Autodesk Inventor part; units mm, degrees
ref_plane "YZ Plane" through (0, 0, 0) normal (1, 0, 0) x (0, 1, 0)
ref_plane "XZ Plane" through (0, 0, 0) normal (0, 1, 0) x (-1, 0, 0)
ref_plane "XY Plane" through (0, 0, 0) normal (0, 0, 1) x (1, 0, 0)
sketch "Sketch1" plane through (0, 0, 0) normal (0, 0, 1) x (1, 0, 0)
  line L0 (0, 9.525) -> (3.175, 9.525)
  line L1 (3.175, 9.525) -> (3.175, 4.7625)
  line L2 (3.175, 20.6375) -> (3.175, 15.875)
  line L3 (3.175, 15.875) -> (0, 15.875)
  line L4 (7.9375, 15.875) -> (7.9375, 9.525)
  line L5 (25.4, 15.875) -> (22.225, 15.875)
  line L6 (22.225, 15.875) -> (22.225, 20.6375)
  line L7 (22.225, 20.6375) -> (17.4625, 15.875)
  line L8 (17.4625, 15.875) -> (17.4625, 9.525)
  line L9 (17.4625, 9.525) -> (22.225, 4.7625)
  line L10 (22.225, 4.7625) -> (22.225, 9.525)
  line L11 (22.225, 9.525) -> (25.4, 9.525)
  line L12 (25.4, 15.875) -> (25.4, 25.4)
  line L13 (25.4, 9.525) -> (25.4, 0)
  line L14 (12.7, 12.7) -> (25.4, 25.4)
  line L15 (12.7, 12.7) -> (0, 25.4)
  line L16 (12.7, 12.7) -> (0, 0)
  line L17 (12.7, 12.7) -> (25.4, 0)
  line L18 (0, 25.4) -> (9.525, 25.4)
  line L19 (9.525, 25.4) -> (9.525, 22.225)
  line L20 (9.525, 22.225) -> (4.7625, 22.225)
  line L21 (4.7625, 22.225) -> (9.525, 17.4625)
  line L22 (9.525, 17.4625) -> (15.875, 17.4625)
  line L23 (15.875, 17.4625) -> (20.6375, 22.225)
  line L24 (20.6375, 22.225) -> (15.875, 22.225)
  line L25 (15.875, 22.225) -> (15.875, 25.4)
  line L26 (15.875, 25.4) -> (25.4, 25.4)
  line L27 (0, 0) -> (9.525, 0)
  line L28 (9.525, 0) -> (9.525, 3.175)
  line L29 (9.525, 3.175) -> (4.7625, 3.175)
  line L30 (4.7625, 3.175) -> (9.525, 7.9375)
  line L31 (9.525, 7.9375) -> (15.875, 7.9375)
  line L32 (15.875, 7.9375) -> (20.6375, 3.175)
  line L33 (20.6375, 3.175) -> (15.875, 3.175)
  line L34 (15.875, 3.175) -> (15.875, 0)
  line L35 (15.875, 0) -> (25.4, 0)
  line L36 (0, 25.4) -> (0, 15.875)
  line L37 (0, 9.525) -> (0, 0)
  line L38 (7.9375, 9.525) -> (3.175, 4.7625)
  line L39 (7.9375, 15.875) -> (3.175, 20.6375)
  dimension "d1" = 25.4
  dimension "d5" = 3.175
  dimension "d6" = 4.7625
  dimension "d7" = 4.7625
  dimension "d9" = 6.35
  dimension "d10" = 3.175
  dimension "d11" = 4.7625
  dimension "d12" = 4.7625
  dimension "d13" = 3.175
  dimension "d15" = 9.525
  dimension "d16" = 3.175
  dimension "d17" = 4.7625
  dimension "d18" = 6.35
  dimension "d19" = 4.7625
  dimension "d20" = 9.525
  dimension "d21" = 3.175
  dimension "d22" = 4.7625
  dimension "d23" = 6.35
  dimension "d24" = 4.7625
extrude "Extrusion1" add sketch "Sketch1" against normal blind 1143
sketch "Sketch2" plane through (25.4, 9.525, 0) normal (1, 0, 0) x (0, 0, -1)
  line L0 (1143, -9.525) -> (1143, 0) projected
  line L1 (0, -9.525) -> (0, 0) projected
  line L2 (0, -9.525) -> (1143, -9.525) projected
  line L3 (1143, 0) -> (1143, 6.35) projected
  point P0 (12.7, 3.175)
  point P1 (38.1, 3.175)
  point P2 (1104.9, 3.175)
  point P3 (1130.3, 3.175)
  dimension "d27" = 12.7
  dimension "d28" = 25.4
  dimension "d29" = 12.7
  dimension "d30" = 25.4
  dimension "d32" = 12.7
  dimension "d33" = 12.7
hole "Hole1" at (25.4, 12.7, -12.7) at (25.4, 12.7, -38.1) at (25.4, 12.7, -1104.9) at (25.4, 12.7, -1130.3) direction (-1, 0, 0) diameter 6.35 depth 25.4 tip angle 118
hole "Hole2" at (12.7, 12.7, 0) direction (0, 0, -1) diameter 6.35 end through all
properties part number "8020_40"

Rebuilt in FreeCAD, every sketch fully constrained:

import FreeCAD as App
import Part
import Sketcher
Q = App.Units.Quantity


def add_polygon(sketch, points):
    """Adds a closed chain of lines whose ends are joined by coincident constraints."""
    first, n = sketch.GeometryCount, len(points)
    for a, b in zip(points, points[1:] + points[:1]):
        sketch.addGeometry(Part.LineSegment(App.Vector(*a, 0), App.Vector(*b, 0)), False)
    for i in range(n):
        sketch.addConstraint(Sketcher.Constraint("Coincident", first + i, 2, first + (i + 1) % n, 1))

doc = App.newDocument("Part")
body = doc.addObject("PartDesign::Body", "Body")

# Sketch on XY plane
sketch1 = doc.addObject("Sketcher::SketchObject", "Sketch")
body.addObject(sketch1)
sketch1.AttachmentSupport = (doc.XY_Plane, [""])
sketch1.MapMode = "FlatFace"
add_polygon(sketch1, [(3.175, 9.525), (0, 9.525), (0, 0), (9.525, 0), (9.525, 3.175), (4.7625, 3.175), (9.525, 7.9375), (15.875, 7.9375), (20.6375, 3.175), (15.875, 3.175), (15.875, 0), (25.4, 0), (25.4, 9.525), (22.225, 9.525), (22.225, 4.7625), (17.4625, 9.525), (17.4625, 15.875), (22.225, 20.6375), (22.225, 15.875), (25.4, 15.875), (25.4, 25.4), (15.875, 25.4), (15.875, 22.225), (20.6375, 22.225), (15.875, 17.4625), (9.525, 17.4625), (4.7625, 22.225), (9.525, 22.225), (9.525, 25.4), (0, 25.4), (0, 15.875), (3.175, 15.875), (3.175, 20.6375), (7.9375, 15.875), (7.9375, 9.525), (3.175, 4.7625)])  # lines 0-35
sketch1.addConstraint(Sketcher.Constraint("Horizontal", 0))
sketch1.addConstraint(Sketcher.Constraint("Vertical", 1))
sketch1.addConstraint(Sketcher.Constraint("Horizontal", 2))
sketch1.addConstraint(Sketcher.Constraint("Vertical", 3))
sketch1.addConstraint(Sketcher.Constraint("Horizontal", 4))
sketch1.addConstraint(Sketcher.Constraint("Horizontal", 6))
sketch1.addConstraint(Sketcher.Constraint("Horizontal", 8))
sketch1.addConstraint(Sketcher.Constraint("Vertical", 9))
sketch1.addConstraint(Sketcher.Constraint("Horizontal", 10))
sketch1.addConstraint(Sketcher.Constraint("Vertical", 11))
sketch1.addConstraint(Sketcher.Constraint("Horizontal", 12))
sketch1.addConstraint(Sketcher.Constraint("Vertical", 13))
sketch1.addConstraint(Sketcher.Constraint("Vertical", 15))
sketch1.addConstraint(Sketcher.Constraint("Vertical", 17))
sketch1.addConstraint(Sketcher.Constraint("Horizontal", 18))
sketch1.addConstraint(Sketcher.Constraint("Vertical", 19))
sketch1.addConstraint(Sketcher.Constraint("Horizontal", 20))
sketch1.addConstraint(Sketcher.Constraint("Vertical", 21))
sketch1.addConstraint(Sketcher.Constraint("Horizontal", 22))
sketch1.addConstraint(Sketcher.Constraint("Horizontal", 24))
sketch1.addConstraint(Sketcher.Constraint("Horizontal", 26))
sketch1.addConstraint(Sketcher.Constraint("Vertical", 27))
sketch1.addConstraint(Sketcher.Constraint("Horizontal", 28))
sketch1.addConstraint(Sketcher.Constraint("Vertical", 29))
sketch1.addConstraint(Sketcher.Constraint("Horizontal", 30))
sketch1.addConstraint(Sketcher.Constraint("Vertical", 31))
sketch1.addConstraint(Sketcher.Constraint("Vertical", 33))
sketch1.addConstraint(Sketcher.Constraint("Vertical", 35))
sketch1.addConstraint(Sketcher.Constraint("Coincident", 1, 2, -1, 1))
sketch1.addConstraint(Sketcher.Constraint("PointOnObject", 9, 2, -1))
sketch1.addConstraint(Sketcher.Constraint("PointOnObject", 28, 2, -2))
sketch1.addConstraint(Sketcher.Constraint("Perpendicular", 5, 7))
sketch1.addConstraint(Sketcher.Constraint("Parallel", 7, 14))
sketch1.addConstraint(Sketcher.Constraint("Perpendicular", 14, 16))
sketch1.addConstraint(Sketcher.Constraint("Parallel", 16, 23))
sketch1.addConstraint(Sketcher.Constraint("Perpendicular", 23, 25))
sketch1.addConstraint(Sketcher.Constraint("Parallel", 25, 32))
sketch1.addConstraint(Sketcher.Constraint("Perpendicular", 32, 34))
sketch1.addConstraint(Sketcher.Constraint("Horizontal", 4, 2, 7, 2))
sketch1.addConstraint(Sketcher.Constraint("Horizontal", 0, 2, 11, 2))
sketch1.addConstraint(Sketcher.Constraint("Horizontal", 12, 2, 14, 2))
sketch1.addConstraint(Sketcher.Constraint("Horizontal", 15, 2, 17, 2))
sketch1.addConstraint(Sketcher.Constraint("Horizontal", 22, 2, 25, 2))
sketch1.addConstraint(Sketcher.Constraint("Horizontal", 20, 2, 27, 2))
sketch1.addConstraint(Sketcher.Constraint("Horizontal", 18, 2, 29, 2))
sketch1.addConstraint(Sketcher.Constraint("Horizontal", 16, 2, 31, 2))
sketch1.addConstraint(Sketcher.Constraint("Horizontal", 30, 2, 32, 2))
sketch1.addConstraint(Sketcher.Constraint("Horizontal", 14, 2, 33, 2))
sketch1.addConstraint(Sketcher.Constraint("Horizontal", 13, 2, 34, 2))
sketch1.addConstraint(Sketcher.Constraint("Vertical", 3, 2, 5, 2))
sketch1.addConstraint(Sketcher.Constraint("Vertical", 6, 2, 8, 2))
sketch1.addConstraint(Sketcher.Constraint("Vertical", 13, 2, 16, 2))
sketch1.addConstraint(Sketcher.Constraint("Vertical", 11, 2, 18, 2))
sketch1.addConstraint(Sketcher.Constraint("Vertical", 9, 2, 20, 2))
sketch1.addConstraint(Sketcher.Constraint("Vertical", 7, 2, 22, 2))
sketch1.addConstraint(Sketcher.Constraint("Vertical", 21, 2, 23, 2))
sketch1.addConstraint(Sketcher.Constraint("Vertical", 5, 2, 24, 2))
sketch1.addConstraint(Sketcher.Constraint("Vertical", 4, 2, 25, 2))
sketch1.addConstraint(Sketcher.Constraint("Vertical", 24, 2, 26, 2))
sketch1.addConstraint(Sketcher.Constraint("Equal", 2, 10))
sketch1.addConstraint(Sketcher.Constraint("Equal", 0, 12))
sketch1.addConstraint(Sketcher.Constraint("Equal", 28, 1))
sketch1.addConstraint(Sketcher.Constraint("Equal", 30, 3))
sketch1.addConstraint(Sketcher.Constraint("Equal", 26, 13))
sketch1.addConstraint(Sketcher.Constraint("Equal", 24, 15))
sketch1.addConstraint(Sketcher.Constraint("Equal", 11, 19))
sketch1.addConstraint(Sketcher.Constraint("Equal", 9, 21))
sketch1.addConstraint(Sketcher.Constraint("DistanceX", -1, 1, 10, 2, Q("1 in")))
sketch1.addConstraint(Sketcher.Constraint("DistanceX", 6, 1, 6, 2, Q("0.25 in")))
sketch1.addConstraint(Sketcher.Constraint("DistanceX", 0, 2, 0, 1, Q("0.125 in")))
sketch1.addConstraint(Sketcher.Constraint("DistanceX", 4, 2, 4, 1, Q("0.1875 in")))
pad1 = doc.addObject("PartDesign::Pad", "Pad")
body.addObject(pad1)
pad1.Profile = sketch1
pad1.Length = Q("45 in")
pad1.Reversed = True

# Sketch on YZ plane
sketch2 = doc.addObject("Sketcher::SketchObject", "Sketch001")
body.addObject(sketch2)
sketch2.AttachmentSupport = (doc.YZ_Plane, [""])
sketch2.MapMode = "FlatFace"
sketch2.AttachmentOffset = App.Placement(App.Vector(0, 0, 1 * 25.4), App.Rotation())
sketch2.addGeometry(Part.Circle(App.Vector(12.7, -12.7, 0), App.Vector(0, 0, 1), 3.175), False)
sketch2.addGeometry(Part.Circle(App.Vector(12.7, -38.1, 0), App.Vector(0, 0, 1), 3.175), False)
sketch2.addGeometry(Part.Circle(App.Vector(12.7, -1104.9, 0), App.Vector(0, 0, 1), 3.175), False)
sketch2.addGeometry(Part.Circle(App.Vector(12.7, -1130.3, 0), App.Vector(0, 0, 1), 3.175), False)
sketch2.addConstraint(Sketcher.Constraint("Equal", 0, 1))
sketch2.addConstraint(Sketcher.Constraint("Equal", 1, 2))
sketch2.addConstraint(Sketcher.Constraint("Equal", 2, 3))
sketch2.addConstraint(Sketcher.Constraint("Vertical", 0, 3, 1, 3))
sketch2.addConstraint(Sketcher.Constraint("Vertical", 1, 3, 2, 3))
sketch2.addConstraint(Sketcher.Constraint("Vertical", 2, 3, 3, 3))
sketch2.addConstraint(Sketcher.Constraint("Diameter", 0, Q("0.25 in")))
sketch2.addConstraint(Sketcher.Constraint("DistanceY", 1, 3, 0, 3, Q("1 in")))
sketch2.addConstraint(Sketcher.Constraint("DistanceY", 2, 3, 1, 3, Q("42 in")))
sketch2.addConstraint(Sketcher.Constraint("DistanceY", 3, 3, 2, 3, Q("1 in")))
sketch2.addConstraint(Sketcher.Constraint("DistanceX", -1, 1, 0, 3, Q("0.5 in")))
sketch2.addConstraint(Sketcher.Constraint("DistanceY", 0, 3, -1, 1, Q("0.5 in")))
doc.recompute()
hole = doc.addObject("PartDesign::Hole", "Hole")
body.addObject(hole)
hole.Profile = sketch2
hole.ThreadType = "None"
hole.Diameter = Q("0.25 in")
hole.DepthType = "Dimension"
hole.Depth = Q("1 in")
hole.DrillPoint = "Angled"
hole.DrillPointAngle = 118

# Sketch on XY plane
sketch3 = doc.addObject("Sketcher::SketchObject", "Sketch002")
body.addObject(sketch3)
sketch3.AttachmentSupport = (doc.XY_Plane, [""])
sketch3.MapMode = "FlatFace"
sketch3.addGeometry(Part.Circle(App.Vector(12.7, 12.7, 0), App.Vector(0, 0, 1), 3.175), False)
sketch3.addConstraint(Sketcher.Constraint("Diameter", 0, Q("0.25 in")))
sketch3.addConstraint(Sketcher.Constraint("DistanceX", -1, 1, 0, 3, Q("0.5 in")))
sketch3.addConstraint(Sketcher.Constraint("DistanceY", -1, 1, 0, 3, Q("0.5 in")))
doc.recompute()
hole2 = doc.addObject("PartDesign::Hole", "Hole001")
body.addObject(hole2)
hole2.Profile = sketch3
hole2.ThreadType = "None"
hole2.Diameter = Q("0.25 in")
hole2.DepthType = "ThroughAll"

doc.recompute()
